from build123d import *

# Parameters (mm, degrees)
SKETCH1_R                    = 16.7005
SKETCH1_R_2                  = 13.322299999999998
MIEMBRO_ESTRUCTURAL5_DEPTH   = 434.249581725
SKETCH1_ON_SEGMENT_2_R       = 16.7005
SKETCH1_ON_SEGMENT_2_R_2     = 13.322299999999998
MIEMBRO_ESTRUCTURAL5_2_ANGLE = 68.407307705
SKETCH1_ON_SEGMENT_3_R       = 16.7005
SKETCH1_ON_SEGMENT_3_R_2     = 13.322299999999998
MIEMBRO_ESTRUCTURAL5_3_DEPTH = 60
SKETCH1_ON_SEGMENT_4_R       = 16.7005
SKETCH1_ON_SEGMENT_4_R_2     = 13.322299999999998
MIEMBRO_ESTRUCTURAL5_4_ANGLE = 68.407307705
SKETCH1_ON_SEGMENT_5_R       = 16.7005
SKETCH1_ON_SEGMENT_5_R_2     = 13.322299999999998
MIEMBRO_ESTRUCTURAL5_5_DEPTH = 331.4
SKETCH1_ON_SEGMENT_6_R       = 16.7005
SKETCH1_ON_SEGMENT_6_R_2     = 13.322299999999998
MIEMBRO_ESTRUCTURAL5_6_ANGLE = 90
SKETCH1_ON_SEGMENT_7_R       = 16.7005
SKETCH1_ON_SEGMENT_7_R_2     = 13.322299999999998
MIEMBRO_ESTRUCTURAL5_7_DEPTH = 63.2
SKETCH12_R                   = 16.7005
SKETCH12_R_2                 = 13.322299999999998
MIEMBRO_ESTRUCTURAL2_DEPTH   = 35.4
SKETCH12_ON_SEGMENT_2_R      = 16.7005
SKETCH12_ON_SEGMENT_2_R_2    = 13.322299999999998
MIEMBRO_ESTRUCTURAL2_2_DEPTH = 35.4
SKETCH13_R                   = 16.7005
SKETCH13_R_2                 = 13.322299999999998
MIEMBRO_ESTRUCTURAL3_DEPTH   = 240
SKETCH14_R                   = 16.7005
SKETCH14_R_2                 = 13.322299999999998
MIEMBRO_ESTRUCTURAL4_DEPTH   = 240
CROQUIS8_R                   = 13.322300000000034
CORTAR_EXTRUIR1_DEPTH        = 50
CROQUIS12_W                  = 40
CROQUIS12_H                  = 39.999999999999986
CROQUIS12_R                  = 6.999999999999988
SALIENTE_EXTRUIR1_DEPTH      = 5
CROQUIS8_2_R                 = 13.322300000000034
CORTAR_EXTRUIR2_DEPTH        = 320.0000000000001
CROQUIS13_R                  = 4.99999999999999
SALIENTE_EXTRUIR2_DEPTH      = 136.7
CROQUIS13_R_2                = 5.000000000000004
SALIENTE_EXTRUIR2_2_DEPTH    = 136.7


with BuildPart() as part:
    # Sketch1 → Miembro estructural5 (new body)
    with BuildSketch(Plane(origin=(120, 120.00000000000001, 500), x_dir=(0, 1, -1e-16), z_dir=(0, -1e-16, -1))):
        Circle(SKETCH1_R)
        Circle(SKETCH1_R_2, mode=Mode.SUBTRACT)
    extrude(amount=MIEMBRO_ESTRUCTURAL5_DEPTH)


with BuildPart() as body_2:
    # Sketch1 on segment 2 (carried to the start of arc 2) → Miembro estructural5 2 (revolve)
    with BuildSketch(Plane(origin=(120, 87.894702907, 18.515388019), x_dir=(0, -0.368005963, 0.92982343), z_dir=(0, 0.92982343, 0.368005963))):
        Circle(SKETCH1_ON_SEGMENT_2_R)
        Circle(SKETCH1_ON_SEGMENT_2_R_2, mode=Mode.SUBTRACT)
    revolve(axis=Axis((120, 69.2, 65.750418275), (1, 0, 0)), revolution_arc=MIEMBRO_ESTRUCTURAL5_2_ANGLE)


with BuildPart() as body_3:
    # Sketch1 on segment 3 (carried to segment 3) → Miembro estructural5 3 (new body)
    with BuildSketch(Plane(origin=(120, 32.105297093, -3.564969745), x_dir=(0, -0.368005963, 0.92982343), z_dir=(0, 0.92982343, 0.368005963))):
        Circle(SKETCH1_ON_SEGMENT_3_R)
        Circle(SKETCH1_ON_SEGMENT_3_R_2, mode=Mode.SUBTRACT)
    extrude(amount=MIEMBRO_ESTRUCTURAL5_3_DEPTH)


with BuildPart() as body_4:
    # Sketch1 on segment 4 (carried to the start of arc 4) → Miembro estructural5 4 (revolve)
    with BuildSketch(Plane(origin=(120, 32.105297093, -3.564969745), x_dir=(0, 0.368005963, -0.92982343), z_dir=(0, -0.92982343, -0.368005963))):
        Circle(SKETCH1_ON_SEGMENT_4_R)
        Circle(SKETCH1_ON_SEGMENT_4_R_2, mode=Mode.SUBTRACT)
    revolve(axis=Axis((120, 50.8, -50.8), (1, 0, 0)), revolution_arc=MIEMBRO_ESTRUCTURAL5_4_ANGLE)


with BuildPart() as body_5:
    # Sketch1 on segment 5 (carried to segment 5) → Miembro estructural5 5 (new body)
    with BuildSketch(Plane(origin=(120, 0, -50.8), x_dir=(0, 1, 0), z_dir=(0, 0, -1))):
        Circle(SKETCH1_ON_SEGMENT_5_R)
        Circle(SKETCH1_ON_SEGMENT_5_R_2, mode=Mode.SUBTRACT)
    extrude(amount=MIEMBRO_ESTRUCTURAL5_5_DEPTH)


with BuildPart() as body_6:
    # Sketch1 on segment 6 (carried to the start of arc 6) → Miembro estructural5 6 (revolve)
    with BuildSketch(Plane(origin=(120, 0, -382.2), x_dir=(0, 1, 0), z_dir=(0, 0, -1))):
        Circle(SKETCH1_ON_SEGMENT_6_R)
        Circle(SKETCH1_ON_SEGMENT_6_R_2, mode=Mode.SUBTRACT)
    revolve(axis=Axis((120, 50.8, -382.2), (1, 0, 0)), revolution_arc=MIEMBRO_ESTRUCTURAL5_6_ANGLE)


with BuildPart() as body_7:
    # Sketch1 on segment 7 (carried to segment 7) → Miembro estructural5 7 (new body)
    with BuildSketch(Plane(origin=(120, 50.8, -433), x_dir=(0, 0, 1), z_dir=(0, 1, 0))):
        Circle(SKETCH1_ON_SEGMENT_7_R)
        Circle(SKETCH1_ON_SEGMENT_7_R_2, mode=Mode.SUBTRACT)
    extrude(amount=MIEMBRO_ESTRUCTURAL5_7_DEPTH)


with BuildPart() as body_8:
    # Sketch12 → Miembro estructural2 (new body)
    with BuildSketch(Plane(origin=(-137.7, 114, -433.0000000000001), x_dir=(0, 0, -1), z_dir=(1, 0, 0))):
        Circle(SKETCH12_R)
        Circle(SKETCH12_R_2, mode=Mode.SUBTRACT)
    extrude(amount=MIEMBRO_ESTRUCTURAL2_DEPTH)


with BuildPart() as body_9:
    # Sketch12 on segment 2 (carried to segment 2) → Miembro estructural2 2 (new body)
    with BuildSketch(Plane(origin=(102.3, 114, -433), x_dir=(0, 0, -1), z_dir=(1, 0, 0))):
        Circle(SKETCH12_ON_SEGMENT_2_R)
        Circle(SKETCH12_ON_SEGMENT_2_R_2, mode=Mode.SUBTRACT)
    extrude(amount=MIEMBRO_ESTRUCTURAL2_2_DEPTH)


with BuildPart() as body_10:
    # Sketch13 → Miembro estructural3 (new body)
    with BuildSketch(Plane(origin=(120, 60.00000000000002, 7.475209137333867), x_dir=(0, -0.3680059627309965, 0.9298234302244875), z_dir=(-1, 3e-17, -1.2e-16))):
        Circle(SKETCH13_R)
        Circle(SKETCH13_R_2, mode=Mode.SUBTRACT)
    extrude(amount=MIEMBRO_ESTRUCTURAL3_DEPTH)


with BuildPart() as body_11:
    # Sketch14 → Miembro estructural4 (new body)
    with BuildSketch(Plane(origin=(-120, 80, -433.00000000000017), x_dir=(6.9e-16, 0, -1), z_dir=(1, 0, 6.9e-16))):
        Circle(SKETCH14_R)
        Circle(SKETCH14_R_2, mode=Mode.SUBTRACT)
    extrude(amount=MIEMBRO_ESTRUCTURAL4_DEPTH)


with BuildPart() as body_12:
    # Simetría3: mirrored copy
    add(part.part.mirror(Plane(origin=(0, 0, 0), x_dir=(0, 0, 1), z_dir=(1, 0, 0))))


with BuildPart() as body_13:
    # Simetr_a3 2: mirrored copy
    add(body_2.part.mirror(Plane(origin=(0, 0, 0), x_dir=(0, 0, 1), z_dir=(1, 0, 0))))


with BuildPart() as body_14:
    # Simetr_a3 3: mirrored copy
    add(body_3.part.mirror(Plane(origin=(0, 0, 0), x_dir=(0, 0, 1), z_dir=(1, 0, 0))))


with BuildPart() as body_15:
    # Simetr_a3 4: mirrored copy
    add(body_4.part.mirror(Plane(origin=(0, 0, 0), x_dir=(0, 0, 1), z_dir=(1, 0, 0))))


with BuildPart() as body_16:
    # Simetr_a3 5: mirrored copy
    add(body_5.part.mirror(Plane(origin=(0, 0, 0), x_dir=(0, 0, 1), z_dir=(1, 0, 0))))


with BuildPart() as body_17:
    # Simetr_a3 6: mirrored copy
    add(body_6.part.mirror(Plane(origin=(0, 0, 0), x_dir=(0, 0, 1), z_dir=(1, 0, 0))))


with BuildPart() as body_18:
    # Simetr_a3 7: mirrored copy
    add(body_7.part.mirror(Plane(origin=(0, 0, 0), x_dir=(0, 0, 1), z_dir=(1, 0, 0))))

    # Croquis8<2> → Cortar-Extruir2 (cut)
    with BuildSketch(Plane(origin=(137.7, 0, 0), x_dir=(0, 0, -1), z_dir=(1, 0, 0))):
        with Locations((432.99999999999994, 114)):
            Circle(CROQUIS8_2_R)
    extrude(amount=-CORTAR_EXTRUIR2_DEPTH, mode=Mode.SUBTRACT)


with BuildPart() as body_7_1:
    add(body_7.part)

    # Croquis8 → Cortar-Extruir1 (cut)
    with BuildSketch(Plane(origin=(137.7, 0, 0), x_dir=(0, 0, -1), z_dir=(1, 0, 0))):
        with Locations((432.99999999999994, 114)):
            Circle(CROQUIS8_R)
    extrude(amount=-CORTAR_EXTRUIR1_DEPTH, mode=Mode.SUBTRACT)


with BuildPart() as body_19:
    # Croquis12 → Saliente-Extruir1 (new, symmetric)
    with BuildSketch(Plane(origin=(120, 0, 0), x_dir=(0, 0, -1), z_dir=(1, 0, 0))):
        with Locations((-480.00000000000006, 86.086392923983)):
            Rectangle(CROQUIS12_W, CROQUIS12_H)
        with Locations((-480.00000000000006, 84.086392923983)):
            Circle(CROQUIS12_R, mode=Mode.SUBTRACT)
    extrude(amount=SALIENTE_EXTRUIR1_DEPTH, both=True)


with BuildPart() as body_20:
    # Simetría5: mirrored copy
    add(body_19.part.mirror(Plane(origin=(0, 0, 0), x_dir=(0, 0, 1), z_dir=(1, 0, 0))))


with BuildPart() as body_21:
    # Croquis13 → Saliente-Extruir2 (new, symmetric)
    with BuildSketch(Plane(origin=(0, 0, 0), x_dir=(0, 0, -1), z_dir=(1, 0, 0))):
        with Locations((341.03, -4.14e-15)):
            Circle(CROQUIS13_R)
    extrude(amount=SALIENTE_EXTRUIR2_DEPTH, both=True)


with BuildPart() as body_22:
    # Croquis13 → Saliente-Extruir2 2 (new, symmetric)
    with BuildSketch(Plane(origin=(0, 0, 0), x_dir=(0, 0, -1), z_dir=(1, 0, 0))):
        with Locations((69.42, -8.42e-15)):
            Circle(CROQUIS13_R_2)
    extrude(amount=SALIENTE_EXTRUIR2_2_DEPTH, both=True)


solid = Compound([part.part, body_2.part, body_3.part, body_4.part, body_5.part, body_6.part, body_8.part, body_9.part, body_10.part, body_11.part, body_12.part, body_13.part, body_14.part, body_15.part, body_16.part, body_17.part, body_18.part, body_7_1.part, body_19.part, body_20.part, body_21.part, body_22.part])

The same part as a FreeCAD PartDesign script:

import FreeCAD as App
import Part
import Sketcher

V = App.Vector
Q = App.Units.Quantity


def add_polygon(sketch, points):
    """Adds a closed chain of lines whose ends are joined by coincident constraints."""
    first, n = sketch.GeometryCount, len(points)
    for a, b in zip(points, points[1:] + points[:1]):
        sketch.addGeometry(Part.LineSegment(App.Vector(*a, 0), App.Vector(*b, 0)), False)
    for i in range(n):
        sketch.addConstraint(Sketcher.Constraint("Coincident", first + i, 2, first + (i + 1) % n, 1))

doc = App.newDocument("Part")
body = doc.addObject("PartDesign::Body", "Body")

sketch1 = body.newObject("Sketcher::SketchObject", "Sketch")
sketch1.AttachmentSupport = (doc.getObject("XY_Plane"), [""])
sketch1.MapMode = "FlatFace"
sketch1.AttachmentOffset = App.Placement(V(0, 0, 500), App.Rotation())
sketch1.addGeometry([
    Part.Circle(V(120, 120, 0), V(0, 0, 1), 17),
    Part.Circle(V(120, 120, 0), V(0, 0, 1), 13),
], False)
sketch1.addConstraint([
    Sketcher.Constraint("Coincident", 1, 3, 0, 3),
    Sketcher.Constraint("Diameter", 0, Q("33.401 mm")),
    Sketcher.Constraint("DistanceX", -1, 1, 0, 3, Q("120 mm")),
    Sketcher.Constraint("DistanceY", -1, 1, 0, 3, Q("120 mm")),
    Sketcher.Constraint("Diameter", 1, Q("26.6446 mm")),
])
pad1 = body.newObject("PartDesign::Pad", "Pad")
pad1.Profile = sketch1
pad1.Length = 434.249582
pad1.Reversed = True
body2 = doc.addObject("PartDesign::Body", "Body001")

sketch2 = body2.newObject("Sketcher::SketchObject", "Sketch001")
sketch2.Placement = App.Placement(V(120, 87.894703, 18.515388), App.Rotation(V(0, -0.368005963, 0.92982343), V(1, 0, 0), V(0, 0.92982343, 0.368005963), "ZXY"))
sketch2.addGeometry([
    Part.Circle(V(0, 0, 0), V(0, 0, 1), 17),
    Part.Circle(V(0, 0, 0), V(0, 0, 1), 13),
], False)
sketch2.addGeometry(Part.LineSegment(V(51, 0, 0), V(51, 10, 0)), True)
sketch2.addConstraint([
    Sketcher.Constraint("Vertical", 2),
    Sketcher.Constraint("Coincident", 0, 3, -1, 1),
    Sketcher.Constraint("Coincident", 1, 3, -1, 1),
    Sketcher.Constraint("PointOnObject", 2, 1, -1),
    Sketcher.Constraint("DistanceY", 2, 1, 2, 2, Q("10 mm")),
    Sketcher.Constraint("Diameter", 0, Q("33.401 mm")),
    Sketcher.Constraint("Diameter", 1, Q("26.6446 mm")),
    Sketcher.Constraint("DistanceX", -1, 1, 2, 1, Q("50.8 mm")),
])
revolution = body2.newObject("PartDesign::Revolution", "Revolution")
revolution.Profile = sketch2
revolution.ReferenceAxis = (sketch2, ["Axis0"])
revolution.Angle = 68.407308
body3 = doc.addObject("PartDesign::Body", "Body002")

sketch3 = body3.newObject("Sketcher::SketchObject", "Sketch002")
sketch3.Placement = App.Placement(V(120, 32.105297, -3.56497), App.Rotation(V(0, -0.368005963, 0.92982343), V(1, 0, 0), V(0, 0.92982343, 0.368005963), "ZXY"))
sketch3.addGeometry([
    Part.Circle(V(0, 0, 0), V(0, 0, 1), 17),
    Part.Circle(V(0, 0, 0), V(0, 0, 1), 13),
], False)
sketch3.addConstraint([
    Sketcher.Constraint("Coincident", 0, 3, -1, 1),
    Sketcher.Constraint("Coincident", 1, 3, -1, 1),
    Sketcher.Constraint("Diameter", 0, Q("33.401 mm")),
    Sketcher.Constraint("Diameter", 1, Q("26.6446 mm")),
])
pad2 = body3.newObject("PartDesign::Pad", "Pad001")
pad2.Profile = sketch3
pad2.Length = 60
body4 = doc.addObject("PartDesign::Body", "Body003")

sketch4 = body4.newObject("Sketcher::SketchObject", "Sketch003")
sketch4.Placement = App.Placement(V(120, 32.105297, -3.56497), App.Rotation(V(0, 0.368005963, -0.92982343), V(1, 0, 0), V(0, -0.92982343, -0.368005963), "ZXY"))
sketch4.addGeometry([
    Part.Circle(V(0, 0, 0), V(0, 0, 1), 17),
    Part.Circle(V(0, 0, 0), V(0, 0, 1), 13),
], False)
sketch4.addGeometry(Part.LineSegment(V(51, 0, 0), V(51, 10, 0)), True)
sketch4.addConstraint([
    Sketcher.Constraint("Vertical", 2),
    Sketcher.Constraint("Coincident", 0, 3, -1, 1),
    Sketcher.Constraint("Coincident", 1, 3, -1, 1),
    Sketcher.Constraint("PointOnObject", 2, 1, -1),
    Sketcher.Constraint("DistanceY", 2, 1, 2, 2, Q("10 mm")),
    Sketcher.Constraint("Diameter", 0, Q("33.401 mm")),
    Sketcher.Constraint("Diameter", 1, Q("26.6446 mm")),
    Sketcher.Constraint("DistanceX", -1, 1, 2, 1, Q("50.8 mm")),
])
revolution2 = body4.newObject("PartDesign::Revolution", "Revolution001")
revolution2.Profile = sketch4
revolution2.ReferenceAxis = (sketch4, ["Axis0"])
revolution2.Angle = 68.407308
body5 = doc.addObject("PartDesign::Body", "Body004")

sketch5 = body5.newObject("Sketcher::SketchObject", "Sketch004")
sketch5.AttachmentSupport = (doc.getObject("XY_Plane004"), [""])
sketch5.MapMode = "FlatFace"
sketch5.AttachmentOffset = App.Placement(V(0, 0, -50.8), App.Rotation())
sketch5.addGeometry([
    Part.Circle(V(120, 0, 0), V(0, 0, 1), 17),
    Part.Circle(V(120, 0, 0), V(0, 0, 1), 13),
], False)
sketch5.addConstraint([
    Sketcher.Constraint("Coincident", 1, 3, 0, 3),
    Sketcher.Constraint("PointOnObject", 0, 3, -1),
    Sketcher.Constraint("Diameter", 0, Q("33.401 mm")),
    Sketcher.Constraint("DistanceX", -1, 1, 0, 3, Q("120 mm")),
    Sketcher.Constraint("Diameter", 1, Q("26.6446 mm")),
])
pad3 = body5.newObject("PartDesign::Pad", "Pad002")
pad3.Profile = sketch5
pad3.Length = 331.4
pad3.Reversed = True
body6 = doc.addObject("PartDesign::Body", "Body005")

sketch6 = body6.newObject("Sketcher::SketchObject", "Sketch005")
sketch6.AttachmentSupport = (doc.getObject("XY_Plane005"), [""])
sketch6.MapMode = "FlatFace"
sketch6.AttachmentOffset = App.Placement(V(0, 0, -382.2), App.Rotation())
sketch6.addGeometry([
    Part.Circle(V(120, 0, 0), V(0, 0, 1), 17),
    Part.Circle(V(120, 0, 0), V(0, 0, 1), 13),
], False)
sketch6.addGeometry(Part.LineSegment(V(120, 51, 0), V(130, 51, 0)), True)
sketch6.addConstraint([
    Sketcher.Constraint("Horizontal", 2),
    Sketcher.Constraint("Coincident", 1, 3, 0, 3),
    Sketcher.Constraint("PointOnObject", 0, 3, -1),
    Sketcher.Constraint("Vertical", 1, 3, 2, 1),
    Sketcher.Constraint("DistanceX", 2, 1, 2, 2, Q("10 mm")),
    Sketcher.Constraint("Diameter", 0, Q("33.401 mm")),
    Sketcher.Constraint("DistanceX", -1, 1, 0, 3, Q("120 mm")),
    Sketcher.Constraint("Diameter", 1, Q("26.6446 mm")),
    Sketcher.Constraint("DistanceY", -1, 1, 2, 1, Q("50.8 mm")),
])
revolution3 = body6.newObject("PartDesign::Revolution", "Revolution002")
revolution3.Profile = sketch6
revolution3.ReferenceAxis = (sketch6, ["Axis0"])
revolution3.Angle = 90
body7 = doc.addObject("PartDesign::Body", "Body006")

sketch7 = body7.newObject("Sketcher::SketchObject", "Sketch006")
sketch7.AttachmentSupport = (doc.getObject("XZ_Plane006"), [""])
sketch7.MapMode = "FlatFace"
sketch7.AttachmentOffset = App.Placement(V(0, 0, -50.8), App.Rotation())
sketch7.addGeometry([
    Part.Circle(V(120, -433, 0), V(0, 0, 1), 17),
    Part.Circle(V(120, -433, 0), V(0, 0, 1), 13),
], False)
sketch7.addConstraint([
    Sketcher.Constraint("Coincident", 1, 3, 0, 3),
    Sketcher.Constraint("Diameter", 0, Q("33.401 mm")),
    Sketcher.Constraint("DistanceX", -1, 1, 0, 3, Q("120 mm")),
    Sketcher.Constraint("DistanceY", 0, 3, -1, 1, Q("433 mm")),
    Sketcher.Constraint("Diameter", 1, Q("26.6446 mm")),
])
pad4 = body7.newObject("PartDesign::Pad", "Pad003")
pad4.Profile = sketch7
pad4.Length = 63.2
pad4.Reversed = True
body8 = doc.addObject("PartDesign::Body", "Body007")

sketch8 = body8.newObject("Sketcher::SketchObject", "Sketch007")
sketch8.AttachmentSupport = (doc.getObject("YZ_Plane007"), [""])
sketch8.MapMode = "FlatFace"
sketch8.AttachmentOffset = App.Placement(V(0, 0, -137.7), App.Rotation())
sketch8.addGeometry([
    Part.Circle(V(114, -433, 0), V(0, 0, 1), 17),
    Part.Circle(V(114, -433, 0), V(0, 0, 1), 13),
], False)
sketch8.addConstraint([
    Sketcher.Constraint("Coincident", 1, 3, 0, 3),
    Sketcher.Constraint("Diameter", 0, Q("33.401 mm")),
    Sketcher.Constraint("DistanceX", -1, 1, 0, 3, Q("114 mm")),
    Sketcher.Constraint("DistanceY", 0, 3, -1, 1, Q("433 mm")),
    Sketcher.Constraint("Diameter", 1, Q("26.6446 mm")),
])
pad5 = body8.newObject("PartDesign::Pad", "Pad004")
pad5.Profile = sketch8
pad5.Length = 35.4
body9 = doc.addObject("PartDesign::Body", "Body008")

sketch9 = body9.newObject("Sketcher::SketchObject", "Sketch008")
sketch9.AttachmentSupport = (doc.getObject("YZ_Plane008"), [""])
sketch9.MapMode = "FlatFace"
sketch9.AttachmentOffset = App.Placement(V(0, 0, 102.3), App.Rotation())
sketch9.addGeometry([
    Part.Circle(V(114, -433, 0), V(0, 0, 1), 17),
    Part.Circle(V(114, -433, 0), V(0, 0, 1), 13),
], False)
sketch9.addConstraint([
    Sketcher.Constraint("Coincident", 1, 3, 0, 3),
    Sketcher.Constraint("Diameter", 0, Q("33.401 mm")),
    Sketcher.Constraint("DistanceX", -1, 1, 0, 3, Q("114 mm")),
    Sketcher.Constraint("DistanceY", 0, 3, -1, 1, Q("433 mm")),
    Sketcher.Constraint("Diameter", 1, Q("26.6446 mm")),
])
pad6 = body9.newObject("PartDesign::Pad", "Pad005")
pad6.Profile = sketch9
pad6.Length = 35.4
body10 = doc.addObject("PartDesign::Body", "Body009")

sketch10 = body10.newObject("Sketcher::SketchObject", "Sketch009")
sketch10.AttachmentSupport = (doc.getObject("YZ_Plane009"), [""])
sketch10.MapMode = "FlatFace"
sketch10.AttachmentOffset = App.Placement(V(0, 0, 120), App.Rotation())
sketch10.addGeometry([
    Part.Circle(V(60, 7, 0), V(0, 0, 1), 17),
    Part.Circle(V(60, 7, 0), V(0, 0, 1), 13),
], False)
sketch10.addConstraint([
    Sketcher.Constraint("Coincident", 1, 3, 0, 3),
    Sketcher.Constraint("Diameter", 0, Q("33.401 mm")),
    Sketcher.Constraint("DistanceX", -1, 1, 0, 3, Q("60 mm")),
    Sketcher.Constraint("Diameter", 1, Q("26.6446 mm")),
    Sketcher.Constraint("DistanceY", -1, 1, 0, 3, Q("7.475209 mm")),
])
pad7 = body10.newObject("PartDesign::Pad", "Pad006")
pad7.Profile = sketch10
pad7.Length = 240
pad7.Reversed = True
body11 = doc.addObject("PartDesign::Body", "Body010")

sketch11 = body11.newObject("Sketcher::SketchObject", "Sketch010")
sketch11.AttachmentSupport = (doc.getObject("YZ_Plane010"), [""])
sketch11.MapMode = "FlatFace"
sketch11.AttachmentOffset = App.Placement(V(0, 0, -120), App.Rotation())
sketch11.addGeometry([
    Part.Circle(V(80, -433, 0), V(0, 0, 1), 17),
    Part.Circle(V(80, -433, 0), V(0, 0, 1), 13),
], False)
sketch11.addConstraint([
    Sketcher.Constraint("Coincident", 1, 3, 0, 3),
    Sketcher.Constraint("Diameter", 0, Q("33.401 mm")),
    Sketcher.Constraint("DistanceX", -1, 1, 0, 3, Q("80 mm")),
    Sketcher.Constraint("DistanceY", 0, 3, -1, 1, Q("433 mm")),
    Sketcher.Constraint("Diameter", 1, Q("26.6446 mm")),
])
pad8 = body11.newObject("PartDesign::Pad", "Pad007")
pad8.Profile = sketch11
pad8.Length = 240
body12 = doc.addObject("PartDesign::Body", "Body011")
doc.recompute()

mirroring = doc.addObject("Part::Mirroring", "Mirroring")
mirroring.Source = body
mirroring.Base = V(0, 0, 0)
mirroring.Normal = V(1, 0, 0)
body12.BaseFeature = mirroring
doc.recompute()
body13 = doc.addObject("PartDesign::Body", "Body012")
doc.recompute()

mirroring2 = doc.addObject("Part::Mirroring", "Mirroring001")
mirroring2.Source = body2
mirroring2.Base = V(0, 0, 0)
mirroring2.Normal = V(1, 0, 0)
body13.BaseFeature = mirroring2
doc.recompute()
body14 = doc.addObject("PartDesign::Body", "Body013")
doc.recompute()

mirroring3 = doc.addObject("Part::Mirroring", "Mirroring002")
mirroring3.Source = body3
mirroring3.Base = V(0, 0, 0)
mirroring3.Normal = V(1, 0, 0)
body14.BaseFeature = mirroring3
doc.recompute()
body15 = doc.addObject("PartDesign::Body", "Body014")
doc.recompute()

mirroring4 = doc.addObject("Part::Mirroring", "Mirroring003")
mirroring4.Source = body4
mirroring4.Base = V(0, 0, 0)
mirroring4.Normal = V(1, 0, 0)
body15.BaseFeature = mirroring4
doc.recompute()
body16 = doc.addObject("PartDesign::Body", "Body015")
doc.recompute()

mirroring5 = doc.addObject("Part::Mirroring", "Mirroring004")
mirroring5.Source = body5
mirroring5.Base = V(0, 0, 0)
mirroring5.Normal = V(1, 0, 0)
body16.BaseFeature = mirroring5
doc.recompute()
body17 = doc.addObject("PartDesign::Body", "Body016")
doc.recompute()

mirroring6 = doc.addObject("Part::Mirroring", "Mirroring005")
mirroring6.Source = body6
mirroring6.Base = V(0, 0, 0)
mirroring6.Normal = V(1, 0, 0)
body17.BaseFeature = mirroring6
doc.recompute()
body18 = doc.addObject("PartDesign::Body", "Body017")
doc.recompute()

mirroring7 = doc.addObject("Part::Mirroring", "Mirroring006")
mirroring7.Source = body7
mirroring7.Base = V(0, 0, 0)
mirroring7.Normal = V(1, 0, 0)
body18.BaseFeature = mirroring7
doc.recompute()

sketch12 = body18.newObject("Sketcher::SketchObject", "Sketch011")
sketch12.AttachmentSupport = (doc.getObject("YZ_Plane017"), [""])
sketch12.MapMode = "FlatFace"
sketch12.AttachmentOffset = App.Placement(V(0, 0, 137.7), App.Rotation())
sketch12.addGeometry(Part.Circle(V(114, -433, 0), V(0, 0, 1), 13), False)
sketch12.addConstraint([
    Sketcher.Constraint("DistanceX", -1, 1, 0, 3, Q("114 mm")),
    Sketcher.Constraint("DistanceY", 0, 3, -1, 1, Q("433 mm")),
    Sketcher.Constraint("Diameter", 0, Q("26.6446 mm")),
])
pocket1 = body18.newObject("PartDesign::Pocket", "Pocket")
pocket1.Profile = sketch12
pocket1.Length = 320

sketch13 = body7.newObject("Sketcher::SketchObject", "Sketch012")
sketch13.AttachmentSupport = (doc.getObject("YZ_Plane006"), [""])
sketch13.MapMode = "FlatFace"
sketch13.AttachmentOffset = App.Placement(V(0, 0, 137.7), App.Rotation())
sketch13.addGeometry(Part.Circle(V(114, -433, 0), V(0, 0, 1), 13), False)
sketch13.addConstraint([
    Sketcher.Constraint("DistanceX", -1, 1, 0, 3, Q("114 mm")),
    Sketcher.Constraint("DistanceY", 0, 3, -1, 1, Q("433 mm")),
    Sketcher.Constraint("Diameter", 0, Q("26.6446 mm")),
])
pocket2 = body7.newObject("PartDesign::Pocket", "Pocket001")
pocket2.Profile = sketch13
pocket2.Length = 50
body19 = doc.addObject("PartDesign::Body", "Body018")

sketch14 = body19.newObject("Sketcher::SketchObject", "Sketch013")
sketch14.AttachmentSupport = (doc.getObject("YZ_Plane018"), [""])
sketch14.MapMode = "FlatFace"
sketch14.AttachmentOffset = App.Placement(V(0, 0, 120), App.Rotation())
add_polygon(sketch14, [(106, 500), (66, 500), (66, 460), (106, 460)])
sketch14.addGeometry(Part.Circle(V(84, 480, 0), V(0, 0, 1), 7), False)
sketch14.addConstraint([
    Sketcher.Constraint("Horizontal", 0),
    Sketcher.Constraint("Vertical", 1),
    Sketcher.Constraint("Horizontal", 2),
    Sketcher.Constraint("Vertical", 3),
    Sketcher.Constraint("Equal", 2, 1),
    Sketcher.Constraint("Diameter", 4, Q("14 mm")),
    Sketcher.Constraint("DistanceX", 0, 2, 0, 1, Q("40 mm")),
    Sketcher.Constraint("DistanceY", -1, 1, 4, 3, Q("480 mm")),
    Sketcher.Constraint("DistanceY", -1, 1, 0, 2, Q("500 mm")),
    Sketcher.Constraint("DistanceX", 0, 2, 4, 3, Q("18 mm")),
    Sketcher.Constraint("DistanceX", -1, 1, 4, 3, Q("84.086393 mm")),
])
pad9 = body19.newObject("PartDesign::Pad", "Pad008")
pad9.Profile = sketch14
pad9.Length = 10
pad9.Midplane = True
body20 = doc.addObject("PartDesign::Body", "Body019")
doc.recompute()

mirroring8 = doc.addObject("Part::Mirroring", "Mirroring007")
mirroring8.Source = body19
mirroring8.Base = V(0, 0, 0)
mirroring8.Normal = V(1, 0, 0)
body20.BaseFeature = mirroring8
doc.recompute()
body21 = doc.addObject("PartDesign::Body", "Body020")

sketch15 = body21.newObject("Sketcher::SketchObject", "Sketch014")
sketch15.AttachmentSupport = (doc.getObject("YZ_Plane020"), [""])
sketch15.MapMode = "FlatFace"
sketch15.addGeometry(Part.Circle(V(0, -341, 0), V(0, 0, 1), 5), False)
sketch15.addConstraint([
    Sketcher.Constraint("PointOnObject", 0, 3, -2),
    Sketcher.Constraint("Diameter", 0, Q("10 mm")),
    Sketcher.Constraint("DistanceY", 0, 3, -1, 1, Q("341.03 mm")),
])
pad10 = body21.newObject("PartDesign::Pad", "Pad009")
pad10.Profile = sketch15
pad10.Length = 273.4
pad10.Midplane = True
body22 = doc.addObject("PartDesign::Body", "Body021")

sketch16 = body22.newObject("Sketcher::SketchObject", "Sketch015")
sketch16.AttachmentSupport = (doc.getObject("YZ_Plane021"), [""])
sketch16.MapMode = "FlatFace"
sketch16.addGeometry(Part.Circle(V(0, -69, 0), V(0, 0, 1), 5), False)
sketch16.addConstraint([
    Sketcher.Constraint("PointOnObject", 0, 3, -2),
    Sketcher.Constraint("Diameter", 0, Q("10 mm")),
    Sketcher.Constraint("DistanceY", 0, 3, -1, 1, Q("69.42 mm")),
])
pad11 = body22.newObject("PartDesign::Pad", "Pad010")
pad11.Profile = sketch16
pad11.Length = 273.4
pad11.Midplane = True

doc.recompute()
